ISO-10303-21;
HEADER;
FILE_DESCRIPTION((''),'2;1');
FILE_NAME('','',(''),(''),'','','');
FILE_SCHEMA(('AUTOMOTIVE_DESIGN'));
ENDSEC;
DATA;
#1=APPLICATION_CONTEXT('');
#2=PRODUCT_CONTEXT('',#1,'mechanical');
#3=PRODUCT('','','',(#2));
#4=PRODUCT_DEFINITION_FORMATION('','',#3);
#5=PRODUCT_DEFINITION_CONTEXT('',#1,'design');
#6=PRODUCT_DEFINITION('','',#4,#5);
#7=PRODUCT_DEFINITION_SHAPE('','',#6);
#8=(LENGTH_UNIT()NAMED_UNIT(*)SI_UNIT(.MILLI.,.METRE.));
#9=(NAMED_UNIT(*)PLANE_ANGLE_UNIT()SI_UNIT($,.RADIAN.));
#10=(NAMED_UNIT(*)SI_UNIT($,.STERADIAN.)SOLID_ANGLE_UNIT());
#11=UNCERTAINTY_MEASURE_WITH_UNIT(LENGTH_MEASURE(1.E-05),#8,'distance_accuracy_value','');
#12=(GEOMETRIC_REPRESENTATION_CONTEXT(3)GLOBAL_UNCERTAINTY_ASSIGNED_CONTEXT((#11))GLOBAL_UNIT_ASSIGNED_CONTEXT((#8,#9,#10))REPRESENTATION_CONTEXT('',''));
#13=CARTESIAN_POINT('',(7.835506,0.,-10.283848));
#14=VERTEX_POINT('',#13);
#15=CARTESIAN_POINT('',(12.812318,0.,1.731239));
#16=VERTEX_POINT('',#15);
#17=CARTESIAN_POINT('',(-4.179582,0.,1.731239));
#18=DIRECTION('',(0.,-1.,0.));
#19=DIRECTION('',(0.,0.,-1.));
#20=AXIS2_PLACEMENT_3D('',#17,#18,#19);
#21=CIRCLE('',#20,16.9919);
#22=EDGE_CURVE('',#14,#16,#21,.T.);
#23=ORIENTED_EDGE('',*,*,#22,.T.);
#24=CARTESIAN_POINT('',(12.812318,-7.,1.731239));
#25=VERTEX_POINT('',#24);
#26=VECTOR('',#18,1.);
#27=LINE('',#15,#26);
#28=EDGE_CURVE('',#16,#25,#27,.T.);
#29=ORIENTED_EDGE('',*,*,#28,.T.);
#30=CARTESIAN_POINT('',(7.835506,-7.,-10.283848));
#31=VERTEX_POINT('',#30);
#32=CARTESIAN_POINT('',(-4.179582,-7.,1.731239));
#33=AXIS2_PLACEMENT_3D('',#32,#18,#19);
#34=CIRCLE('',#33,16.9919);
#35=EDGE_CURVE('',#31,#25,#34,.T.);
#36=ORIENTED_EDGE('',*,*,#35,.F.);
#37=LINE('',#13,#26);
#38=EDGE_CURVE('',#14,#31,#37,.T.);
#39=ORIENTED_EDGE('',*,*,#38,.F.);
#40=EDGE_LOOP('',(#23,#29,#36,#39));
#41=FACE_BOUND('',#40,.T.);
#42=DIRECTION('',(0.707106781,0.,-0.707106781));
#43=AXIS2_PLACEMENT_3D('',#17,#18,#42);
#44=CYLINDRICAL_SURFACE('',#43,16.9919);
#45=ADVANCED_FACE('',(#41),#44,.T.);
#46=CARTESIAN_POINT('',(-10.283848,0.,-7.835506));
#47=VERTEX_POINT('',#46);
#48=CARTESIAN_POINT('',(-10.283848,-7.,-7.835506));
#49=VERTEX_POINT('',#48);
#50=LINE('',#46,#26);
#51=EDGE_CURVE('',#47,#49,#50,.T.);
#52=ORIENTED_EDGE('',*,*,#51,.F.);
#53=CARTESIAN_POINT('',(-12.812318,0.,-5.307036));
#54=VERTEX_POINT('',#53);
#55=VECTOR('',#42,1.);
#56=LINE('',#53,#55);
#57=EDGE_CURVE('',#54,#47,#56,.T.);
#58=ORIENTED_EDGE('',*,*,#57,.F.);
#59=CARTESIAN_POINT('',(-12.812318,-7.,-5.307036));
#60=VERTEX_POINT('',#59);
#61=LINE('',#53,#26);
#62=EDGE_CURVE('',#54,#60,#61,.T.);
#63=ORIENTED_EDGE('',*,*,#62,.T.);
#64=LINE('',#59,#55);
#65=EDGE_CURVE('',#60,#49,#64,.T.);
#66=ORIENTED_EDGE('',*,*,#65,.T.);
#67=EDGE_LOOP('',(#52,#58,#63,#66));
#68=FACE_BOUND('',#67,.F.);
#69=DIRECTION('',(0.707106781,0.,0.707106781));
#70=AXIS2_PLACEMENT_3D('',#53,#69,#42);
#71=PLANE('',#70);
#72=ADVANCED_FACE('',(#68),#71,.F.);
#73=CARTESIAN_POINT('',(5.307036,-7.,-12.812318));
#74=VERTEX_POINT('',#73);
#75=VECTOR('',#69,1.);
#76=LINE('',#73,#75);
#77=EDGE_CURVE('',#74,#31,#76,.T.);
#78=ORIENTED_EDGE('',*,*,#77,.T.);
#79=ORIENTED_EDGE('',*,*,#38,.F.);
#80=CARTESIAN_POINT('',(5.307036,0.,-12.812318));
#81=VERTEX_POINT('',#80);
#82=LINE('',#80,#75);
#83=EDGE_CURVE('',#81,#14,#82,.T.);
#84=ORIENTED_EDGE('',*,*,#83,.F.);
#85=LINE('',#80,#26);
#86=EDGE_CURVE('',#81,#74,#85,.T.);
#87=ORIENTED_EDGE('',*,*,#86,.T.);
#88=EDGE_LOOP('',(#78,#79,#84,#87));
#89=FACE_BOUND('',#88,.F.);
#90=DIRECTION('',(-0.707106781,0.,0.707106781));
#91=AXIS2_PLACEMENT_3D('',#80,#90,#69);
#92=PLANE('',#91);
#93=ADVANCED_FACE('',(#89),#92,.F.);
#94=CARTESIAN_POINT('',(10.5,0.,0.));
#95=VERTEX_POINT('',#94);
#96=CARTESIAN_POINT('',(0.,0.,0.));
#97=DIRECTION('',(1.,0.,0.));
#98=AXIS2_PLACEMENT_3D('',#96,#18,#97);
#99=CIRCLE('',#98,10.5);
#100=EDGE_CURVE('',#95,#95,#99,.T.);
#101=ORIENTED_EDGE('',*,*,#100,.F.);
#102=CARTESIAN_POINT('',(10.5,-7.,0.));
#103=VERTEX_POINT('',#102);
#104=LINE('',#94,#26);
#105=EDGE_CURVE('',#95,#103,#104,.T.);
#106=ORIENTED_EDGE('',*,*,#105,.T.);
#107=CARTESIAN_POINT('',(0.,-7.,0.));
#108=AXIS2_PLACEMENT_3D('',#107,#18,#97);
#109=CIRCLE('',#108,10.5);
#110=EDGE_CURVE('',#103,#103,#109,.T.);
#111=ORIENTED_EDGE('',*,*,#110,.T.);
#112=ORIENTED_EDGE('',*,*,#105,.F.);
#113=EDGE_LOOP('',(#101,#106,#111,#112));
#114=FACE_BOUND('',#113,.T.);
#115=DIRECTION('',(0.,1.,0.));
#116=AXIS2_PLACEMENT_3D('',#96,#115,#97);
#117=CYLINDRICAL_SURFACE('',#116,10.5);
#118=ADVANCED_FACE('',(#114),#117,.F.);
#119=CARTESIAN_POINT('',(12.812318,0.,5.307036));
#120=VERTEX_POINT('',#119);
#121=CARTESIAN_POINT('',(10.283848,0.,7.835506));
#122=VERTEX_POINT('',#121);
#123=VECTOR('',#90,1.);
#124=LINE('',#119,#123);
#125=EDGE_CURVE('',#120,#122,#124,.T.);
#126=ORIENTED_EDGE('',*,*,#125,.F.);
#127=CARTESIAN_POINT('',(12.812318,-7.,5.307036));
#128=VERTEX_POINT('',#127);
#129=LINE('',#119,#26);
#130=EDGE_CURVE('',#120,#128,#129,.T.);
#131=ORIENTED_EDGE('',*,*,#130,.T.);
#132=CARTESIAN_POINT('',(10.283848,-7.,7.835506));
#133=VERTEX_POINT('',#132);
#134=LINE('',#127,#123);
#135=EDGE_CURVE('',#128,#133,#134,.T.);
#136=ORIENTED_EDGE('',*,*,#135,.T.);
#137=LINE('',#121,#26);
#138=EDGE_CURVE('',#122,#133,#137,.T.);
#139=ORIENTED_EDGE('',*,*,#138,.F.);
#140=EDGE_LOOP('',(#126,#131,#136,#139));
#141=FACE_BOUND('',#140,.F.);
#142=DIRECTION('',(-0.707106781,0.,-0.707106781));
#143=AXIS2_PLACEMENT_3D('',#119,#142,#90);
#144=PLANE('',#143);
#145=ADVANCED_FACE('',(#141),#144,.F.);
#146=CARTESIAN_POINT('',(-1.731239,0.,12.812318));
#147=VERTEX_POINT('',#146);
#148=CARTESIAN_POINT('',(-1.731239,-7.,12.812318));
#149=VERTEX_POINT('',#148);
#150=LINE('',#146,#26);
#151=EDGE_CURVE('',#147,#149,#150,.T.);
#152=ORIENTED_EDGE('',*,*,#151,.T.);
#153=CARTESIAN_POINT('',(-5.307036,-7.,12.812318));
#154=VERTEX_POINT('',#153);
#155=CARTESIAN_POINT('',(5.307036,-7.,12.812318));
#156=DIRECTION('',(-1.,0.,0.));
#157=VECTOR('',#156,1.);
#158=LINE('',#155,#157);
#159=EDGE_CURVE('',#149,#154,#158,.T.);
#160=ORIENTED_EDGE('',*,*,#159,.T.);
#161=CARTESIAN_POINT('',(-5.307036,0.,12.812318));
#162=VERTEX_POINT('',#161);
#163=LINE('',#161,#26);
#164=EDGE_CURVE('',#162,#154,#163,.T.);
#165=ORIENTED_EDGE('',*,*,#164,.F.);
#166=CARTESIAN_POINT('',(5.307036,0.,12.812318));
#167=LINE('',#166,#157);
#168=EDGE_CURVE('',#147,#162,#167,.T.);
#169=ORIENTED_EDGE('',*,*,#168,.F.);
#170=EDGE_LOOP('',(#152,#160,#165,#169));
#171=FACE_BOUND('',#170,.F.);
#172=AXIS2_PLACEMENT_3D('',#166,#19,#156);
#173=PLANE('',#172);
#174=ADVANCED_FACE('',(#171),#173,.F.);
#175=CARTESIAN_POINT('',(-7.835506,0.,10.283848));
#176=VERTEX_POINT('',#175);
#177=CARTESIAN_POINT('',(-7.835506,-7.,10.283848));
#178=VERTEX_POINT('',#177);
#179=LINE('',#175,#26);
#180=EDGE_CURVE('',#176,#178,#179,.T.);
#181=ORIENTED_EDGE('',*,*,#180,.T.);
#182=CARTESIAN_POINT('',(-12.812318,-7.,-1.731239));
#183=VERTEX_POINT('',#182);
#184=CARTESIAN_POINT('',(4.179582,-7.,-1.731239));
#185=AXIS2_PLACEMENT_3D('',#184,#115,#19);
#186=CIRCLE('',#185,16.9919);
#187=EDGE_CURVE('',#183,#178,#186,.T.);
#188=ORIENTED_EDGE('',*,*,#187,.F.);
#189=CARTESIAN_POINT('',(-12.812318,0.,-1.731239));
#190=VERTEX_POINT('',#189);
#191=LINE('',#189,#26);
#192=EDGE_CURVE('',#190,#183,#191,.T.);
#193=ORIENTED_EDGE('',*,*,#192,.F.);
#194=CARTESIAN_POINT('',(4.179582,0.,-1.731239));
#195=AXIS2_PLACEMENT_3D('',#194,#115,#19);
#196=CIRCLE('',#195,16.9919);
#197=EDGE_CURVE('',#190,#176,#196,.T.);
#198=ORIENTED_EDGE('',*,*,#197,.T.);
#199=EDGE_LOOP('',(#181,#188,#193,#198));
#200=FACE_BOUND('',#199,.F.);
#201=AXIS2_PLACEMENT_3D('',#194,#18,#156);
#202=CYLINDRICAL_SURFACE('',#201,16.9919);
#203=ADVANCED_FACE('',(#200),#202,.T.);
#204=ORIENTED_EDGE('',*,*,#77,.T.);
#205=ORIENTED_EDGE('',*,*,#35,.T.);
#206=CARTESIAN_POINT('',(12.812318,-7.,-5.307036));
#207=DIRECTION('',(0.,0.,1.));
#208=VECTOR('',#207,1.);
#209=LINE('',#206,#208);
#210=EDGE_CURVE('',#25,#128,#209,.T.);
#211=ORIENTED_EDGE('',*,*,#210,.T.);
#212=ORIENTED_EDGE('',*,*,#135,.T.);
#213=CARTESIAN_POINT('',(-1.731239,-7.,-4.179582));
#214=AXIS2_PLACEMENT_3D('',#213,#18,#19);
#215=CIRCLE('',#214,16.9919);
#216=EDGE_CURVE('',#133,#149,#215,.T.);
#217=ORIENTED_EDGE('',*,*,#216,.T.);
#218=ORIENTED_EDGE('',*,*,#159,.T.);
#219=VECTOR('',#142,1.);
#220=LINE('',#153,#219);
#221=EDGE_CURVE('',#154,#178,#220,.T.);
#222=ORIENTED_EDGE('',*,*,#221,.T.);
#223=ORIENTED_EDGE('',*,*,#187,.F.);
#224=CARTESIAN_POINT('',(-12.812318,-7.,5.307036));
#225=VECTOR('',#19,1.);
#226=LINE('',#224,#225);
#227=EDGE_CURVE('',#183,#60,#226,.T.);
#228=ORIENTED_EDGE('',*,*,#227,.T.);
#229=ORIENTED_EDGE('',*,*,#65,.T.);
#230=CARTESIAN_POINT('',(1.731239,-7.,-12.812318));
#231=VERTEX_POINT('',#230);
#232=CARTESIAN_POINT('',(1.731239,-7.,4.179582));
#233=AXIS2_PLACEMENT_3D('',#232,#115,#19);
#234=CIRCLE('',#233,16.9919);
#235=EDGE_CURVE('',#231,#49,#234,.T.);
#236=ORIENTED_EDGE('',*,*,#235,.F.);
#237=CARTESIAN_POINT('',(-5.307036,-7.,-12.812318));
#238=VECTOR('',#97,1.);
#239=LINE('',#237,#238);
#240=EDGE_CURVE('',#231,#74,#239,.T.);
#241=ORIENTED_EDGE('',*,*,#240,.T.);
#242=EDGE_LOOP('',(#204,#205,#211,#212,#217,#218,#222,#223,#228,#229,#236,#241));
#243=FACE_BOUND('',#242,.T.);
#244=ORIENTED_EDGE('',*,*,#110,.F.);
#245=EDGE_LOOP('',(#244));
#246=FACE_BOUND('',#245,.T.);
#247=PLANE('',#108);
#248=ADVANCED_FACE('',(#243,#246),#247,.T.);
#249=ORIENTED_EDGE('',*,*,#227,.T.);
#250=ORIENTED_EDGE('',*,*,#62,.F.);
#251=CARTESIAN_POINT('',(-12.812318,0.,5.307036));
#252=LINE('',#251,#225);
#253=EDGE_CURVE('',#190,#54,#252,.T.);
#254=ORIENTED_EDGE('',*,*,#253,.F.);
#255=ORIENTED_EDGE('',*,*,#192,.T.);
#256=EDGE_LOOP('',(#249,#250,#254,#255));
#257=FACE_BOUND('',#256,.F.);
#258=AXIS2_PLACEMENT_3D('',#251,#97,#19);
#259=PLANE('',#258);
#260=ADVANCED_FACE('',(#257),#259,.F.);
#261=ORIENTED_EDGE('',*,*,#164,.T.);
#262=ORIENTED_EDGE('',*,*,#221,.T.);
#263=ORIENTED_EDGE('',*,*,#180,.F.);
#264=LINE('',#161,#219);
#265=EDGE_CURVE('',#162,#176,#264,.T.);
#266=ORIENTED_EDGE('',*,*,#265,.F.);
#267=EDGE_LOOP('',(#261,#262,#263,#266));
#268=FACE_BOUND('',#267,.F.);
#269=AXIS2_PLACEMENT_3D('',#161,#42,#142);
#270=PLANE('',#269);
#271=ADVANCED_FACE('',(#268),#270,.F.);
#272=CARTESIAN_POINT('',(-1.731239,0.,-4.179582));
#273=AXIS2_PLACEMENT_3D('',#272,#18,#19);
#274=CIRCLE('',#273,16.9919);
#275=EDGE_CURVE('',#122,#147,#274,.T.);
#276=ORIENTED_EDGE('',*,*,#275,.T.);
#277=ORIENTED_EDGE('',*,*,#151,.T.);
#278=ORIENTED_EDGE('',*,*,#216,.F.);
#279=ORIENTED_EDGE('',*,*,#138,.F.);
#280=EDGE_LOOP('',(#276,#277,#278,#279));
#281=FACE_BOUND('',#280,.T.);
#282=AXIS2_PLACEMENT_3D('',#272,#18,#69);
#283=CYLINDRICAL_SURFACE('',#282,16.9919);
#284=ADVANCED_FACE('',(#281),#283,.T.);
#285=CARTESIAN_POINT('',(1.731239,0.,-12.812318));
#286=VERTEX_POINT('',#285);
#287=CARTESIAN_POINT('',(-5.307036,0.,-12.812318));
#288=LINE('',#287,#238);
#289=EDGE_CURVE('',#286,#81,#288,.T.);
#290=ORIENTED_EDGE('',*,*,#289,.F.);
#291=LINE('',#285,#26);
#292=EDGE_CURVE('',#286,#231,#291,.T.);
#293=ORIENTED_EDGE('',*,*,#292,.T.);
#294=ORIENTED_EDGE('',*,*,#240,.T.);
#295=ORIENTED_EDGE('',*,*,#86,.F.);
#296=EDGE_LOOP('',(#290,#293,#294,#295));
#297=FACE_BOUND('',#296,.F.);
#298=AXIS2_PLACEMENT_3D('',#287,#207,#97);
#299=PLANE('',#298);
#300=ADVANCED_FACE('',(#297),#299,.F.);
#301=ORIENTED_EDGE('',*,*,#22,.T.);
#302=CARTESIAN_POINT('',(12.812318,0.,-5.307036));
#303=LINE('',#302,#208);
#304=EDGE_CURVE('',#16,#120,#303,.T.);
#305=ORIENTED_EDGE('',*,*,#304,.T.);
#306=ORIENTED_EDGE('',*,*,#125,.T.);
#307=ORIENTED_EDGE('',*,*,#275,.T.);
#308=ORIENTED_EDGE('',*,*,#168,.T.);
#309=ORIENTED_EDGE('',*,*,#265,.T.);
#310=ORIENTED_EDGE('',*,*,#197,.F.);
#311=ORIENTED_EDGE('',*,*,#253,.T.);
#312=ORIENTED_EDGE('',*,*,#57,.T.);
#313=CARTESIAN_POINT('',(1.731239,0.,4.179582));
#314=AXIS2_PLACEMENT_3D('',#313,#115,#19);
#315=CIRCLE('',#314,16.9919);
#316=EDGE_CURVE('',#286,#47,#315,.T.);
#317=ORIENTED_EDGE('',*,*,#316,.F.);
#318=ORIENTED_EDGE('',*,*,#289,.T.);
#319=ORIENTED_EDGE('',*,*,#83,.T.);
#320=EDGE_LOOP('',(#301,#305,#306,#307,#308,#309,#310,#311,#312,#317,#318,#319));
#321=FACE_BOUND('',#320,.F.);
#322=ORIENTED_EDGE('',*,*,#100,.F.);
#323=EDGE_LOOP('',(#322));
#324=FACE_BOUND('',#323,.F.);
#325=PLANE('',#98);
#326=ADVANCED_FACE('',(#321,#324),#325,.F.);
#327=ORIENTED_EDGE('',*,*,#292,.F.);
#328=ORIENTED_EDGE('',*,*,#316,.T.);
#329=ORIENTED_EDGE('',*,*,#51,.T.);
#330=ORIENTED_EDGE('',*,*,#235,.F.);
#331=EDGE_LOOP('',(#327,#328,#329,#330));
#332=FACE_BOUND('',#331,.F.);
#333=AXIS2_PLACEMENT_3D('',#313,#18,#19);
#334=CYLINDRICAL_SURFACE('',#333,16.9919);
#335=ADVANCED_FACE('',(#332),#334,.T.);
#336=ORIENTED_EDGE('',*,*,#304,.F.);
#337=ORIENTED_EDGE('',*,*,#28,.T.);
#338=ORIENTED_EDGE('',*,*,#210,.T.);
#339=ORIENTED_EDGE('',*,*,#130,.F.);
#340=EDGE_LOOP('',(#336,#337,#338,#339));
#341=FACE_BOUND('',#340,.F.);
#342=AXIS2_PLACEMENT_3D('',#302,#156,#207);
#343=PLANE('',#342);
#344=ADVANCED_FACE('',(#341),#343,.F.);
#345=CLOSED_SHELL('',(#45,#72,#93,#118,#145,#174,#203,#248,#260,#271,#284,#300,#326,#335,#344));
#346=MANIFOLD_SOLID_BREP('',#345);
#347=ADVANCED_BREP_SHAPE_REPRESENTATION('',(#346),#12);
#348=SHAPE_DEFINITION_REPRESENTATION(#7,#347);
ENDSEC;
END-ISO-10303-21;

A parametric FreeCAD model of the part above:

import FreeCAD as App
import Part
import Sketcher


def edges_at(feature, points):
    """Names of the edges that pass closest to the given points."""
    edges = feature.Shape.Edges
    near = lambda p: min(range(len(edges)), key=lambda i: edges[i].distToShape(Part.Vertex(*p))[0])
    return sorted({f"Edge{near(p) + 1}" for p in points})


def add_polygon(sketch, points):
    """Adds a closed chain of lines whose ends are joined by coincident constraints."""
    first, n = sketch.GeometryCount, len(points)
    for a, b in zip(points, points[1:] + points[:1]):
        sketch.addGeometry(Part.LineSegment(App.Vector(*a, 0), App.Vector(*b, 0)), False)
    for i in range(n):
        sketch.addConstraint(Sketcher.Constraint("Coincident", first + i, 2, first + (i + 1) % n, 1))

doc = App.newDocument("Part")
body = doc.addObject("PartDesign::Body", "Body")

# Sketch on XZ plane
sketch1 = body.newObject("Sketcher::SketchObject", "Sketch")
sketch1.AttachmentSupport = (doc.getObject("XZ_Plane"), [""])
sketch1.MapMode = "FlatFace"
add_polygon(sketch1, [(-5, -13), (5, -13), (13, -5), (13, 5), (5, 13), (-5, 13), (-13, 5), (-13, -5)])  # lines 0-7
sketch1.addGeometry(Part.Circle(App.Vector(0, 0, 0), App.Vector(0, 0, 1), 10), False)  # 8
sketch1.addConstraint([
    Sketcher.Constraint("Horizontal", 0),
    Sketcher.Constraint("Vertical", 2),
    Sketcher.Constraint("Horizontal", 4),
    Sketcher.Constraint("Vertical", 6),
    Sketcher.Constraint("Coincident", 8, 3, -1, 1),
    Sketcher.Constraint("Symmetric", 0, 2, 4, 2, -1, 1),
    Sketcher.Constraint("Symmetric", 1, 2, 5, 2, -1, 1),
    Sketcher.Constraint("Perpendicular", 1, 3),
    Sketcher.Constraint("Perpendicular", 5, 7),
    Sketcher.Constraint("Horizontal", 2, 2, 5, 2),
    Sketcher.Constraint("Horizontal", 1, 2, 6, 2),
    Sketcher.Constraint("Vertical", 0, 2, 3, 2),
    Sketcher.Constraint("Equal", 4, 2),
    Sketcher.Constraint("Diameter", 8, 21.0),
    Sketcher.Constraint("Distance", 1, 10.614072),
    Sketcher.Constraint("DistanceX", 0, 1, 0, 2, 10.614072),
])
pad1 = body.newObject("PartDesign::Pad", "Pad")
pad1.Profile = sketch1
pad1.Length = 7
doc.recompute()

fillet = body.newObject("PartDesign::Fillet", "Fillet")
fillet.Base = (pad1, edges_at(pad1, [
    (-12.812, -3.5, 5.307),
    (5.307, -3.5, 12.812),
    (12.812, -3.5, -5.307),
    (-5.307, -3.5, -12.812),
]))
fillet.Radius = 16.9919

doc.recompute()
